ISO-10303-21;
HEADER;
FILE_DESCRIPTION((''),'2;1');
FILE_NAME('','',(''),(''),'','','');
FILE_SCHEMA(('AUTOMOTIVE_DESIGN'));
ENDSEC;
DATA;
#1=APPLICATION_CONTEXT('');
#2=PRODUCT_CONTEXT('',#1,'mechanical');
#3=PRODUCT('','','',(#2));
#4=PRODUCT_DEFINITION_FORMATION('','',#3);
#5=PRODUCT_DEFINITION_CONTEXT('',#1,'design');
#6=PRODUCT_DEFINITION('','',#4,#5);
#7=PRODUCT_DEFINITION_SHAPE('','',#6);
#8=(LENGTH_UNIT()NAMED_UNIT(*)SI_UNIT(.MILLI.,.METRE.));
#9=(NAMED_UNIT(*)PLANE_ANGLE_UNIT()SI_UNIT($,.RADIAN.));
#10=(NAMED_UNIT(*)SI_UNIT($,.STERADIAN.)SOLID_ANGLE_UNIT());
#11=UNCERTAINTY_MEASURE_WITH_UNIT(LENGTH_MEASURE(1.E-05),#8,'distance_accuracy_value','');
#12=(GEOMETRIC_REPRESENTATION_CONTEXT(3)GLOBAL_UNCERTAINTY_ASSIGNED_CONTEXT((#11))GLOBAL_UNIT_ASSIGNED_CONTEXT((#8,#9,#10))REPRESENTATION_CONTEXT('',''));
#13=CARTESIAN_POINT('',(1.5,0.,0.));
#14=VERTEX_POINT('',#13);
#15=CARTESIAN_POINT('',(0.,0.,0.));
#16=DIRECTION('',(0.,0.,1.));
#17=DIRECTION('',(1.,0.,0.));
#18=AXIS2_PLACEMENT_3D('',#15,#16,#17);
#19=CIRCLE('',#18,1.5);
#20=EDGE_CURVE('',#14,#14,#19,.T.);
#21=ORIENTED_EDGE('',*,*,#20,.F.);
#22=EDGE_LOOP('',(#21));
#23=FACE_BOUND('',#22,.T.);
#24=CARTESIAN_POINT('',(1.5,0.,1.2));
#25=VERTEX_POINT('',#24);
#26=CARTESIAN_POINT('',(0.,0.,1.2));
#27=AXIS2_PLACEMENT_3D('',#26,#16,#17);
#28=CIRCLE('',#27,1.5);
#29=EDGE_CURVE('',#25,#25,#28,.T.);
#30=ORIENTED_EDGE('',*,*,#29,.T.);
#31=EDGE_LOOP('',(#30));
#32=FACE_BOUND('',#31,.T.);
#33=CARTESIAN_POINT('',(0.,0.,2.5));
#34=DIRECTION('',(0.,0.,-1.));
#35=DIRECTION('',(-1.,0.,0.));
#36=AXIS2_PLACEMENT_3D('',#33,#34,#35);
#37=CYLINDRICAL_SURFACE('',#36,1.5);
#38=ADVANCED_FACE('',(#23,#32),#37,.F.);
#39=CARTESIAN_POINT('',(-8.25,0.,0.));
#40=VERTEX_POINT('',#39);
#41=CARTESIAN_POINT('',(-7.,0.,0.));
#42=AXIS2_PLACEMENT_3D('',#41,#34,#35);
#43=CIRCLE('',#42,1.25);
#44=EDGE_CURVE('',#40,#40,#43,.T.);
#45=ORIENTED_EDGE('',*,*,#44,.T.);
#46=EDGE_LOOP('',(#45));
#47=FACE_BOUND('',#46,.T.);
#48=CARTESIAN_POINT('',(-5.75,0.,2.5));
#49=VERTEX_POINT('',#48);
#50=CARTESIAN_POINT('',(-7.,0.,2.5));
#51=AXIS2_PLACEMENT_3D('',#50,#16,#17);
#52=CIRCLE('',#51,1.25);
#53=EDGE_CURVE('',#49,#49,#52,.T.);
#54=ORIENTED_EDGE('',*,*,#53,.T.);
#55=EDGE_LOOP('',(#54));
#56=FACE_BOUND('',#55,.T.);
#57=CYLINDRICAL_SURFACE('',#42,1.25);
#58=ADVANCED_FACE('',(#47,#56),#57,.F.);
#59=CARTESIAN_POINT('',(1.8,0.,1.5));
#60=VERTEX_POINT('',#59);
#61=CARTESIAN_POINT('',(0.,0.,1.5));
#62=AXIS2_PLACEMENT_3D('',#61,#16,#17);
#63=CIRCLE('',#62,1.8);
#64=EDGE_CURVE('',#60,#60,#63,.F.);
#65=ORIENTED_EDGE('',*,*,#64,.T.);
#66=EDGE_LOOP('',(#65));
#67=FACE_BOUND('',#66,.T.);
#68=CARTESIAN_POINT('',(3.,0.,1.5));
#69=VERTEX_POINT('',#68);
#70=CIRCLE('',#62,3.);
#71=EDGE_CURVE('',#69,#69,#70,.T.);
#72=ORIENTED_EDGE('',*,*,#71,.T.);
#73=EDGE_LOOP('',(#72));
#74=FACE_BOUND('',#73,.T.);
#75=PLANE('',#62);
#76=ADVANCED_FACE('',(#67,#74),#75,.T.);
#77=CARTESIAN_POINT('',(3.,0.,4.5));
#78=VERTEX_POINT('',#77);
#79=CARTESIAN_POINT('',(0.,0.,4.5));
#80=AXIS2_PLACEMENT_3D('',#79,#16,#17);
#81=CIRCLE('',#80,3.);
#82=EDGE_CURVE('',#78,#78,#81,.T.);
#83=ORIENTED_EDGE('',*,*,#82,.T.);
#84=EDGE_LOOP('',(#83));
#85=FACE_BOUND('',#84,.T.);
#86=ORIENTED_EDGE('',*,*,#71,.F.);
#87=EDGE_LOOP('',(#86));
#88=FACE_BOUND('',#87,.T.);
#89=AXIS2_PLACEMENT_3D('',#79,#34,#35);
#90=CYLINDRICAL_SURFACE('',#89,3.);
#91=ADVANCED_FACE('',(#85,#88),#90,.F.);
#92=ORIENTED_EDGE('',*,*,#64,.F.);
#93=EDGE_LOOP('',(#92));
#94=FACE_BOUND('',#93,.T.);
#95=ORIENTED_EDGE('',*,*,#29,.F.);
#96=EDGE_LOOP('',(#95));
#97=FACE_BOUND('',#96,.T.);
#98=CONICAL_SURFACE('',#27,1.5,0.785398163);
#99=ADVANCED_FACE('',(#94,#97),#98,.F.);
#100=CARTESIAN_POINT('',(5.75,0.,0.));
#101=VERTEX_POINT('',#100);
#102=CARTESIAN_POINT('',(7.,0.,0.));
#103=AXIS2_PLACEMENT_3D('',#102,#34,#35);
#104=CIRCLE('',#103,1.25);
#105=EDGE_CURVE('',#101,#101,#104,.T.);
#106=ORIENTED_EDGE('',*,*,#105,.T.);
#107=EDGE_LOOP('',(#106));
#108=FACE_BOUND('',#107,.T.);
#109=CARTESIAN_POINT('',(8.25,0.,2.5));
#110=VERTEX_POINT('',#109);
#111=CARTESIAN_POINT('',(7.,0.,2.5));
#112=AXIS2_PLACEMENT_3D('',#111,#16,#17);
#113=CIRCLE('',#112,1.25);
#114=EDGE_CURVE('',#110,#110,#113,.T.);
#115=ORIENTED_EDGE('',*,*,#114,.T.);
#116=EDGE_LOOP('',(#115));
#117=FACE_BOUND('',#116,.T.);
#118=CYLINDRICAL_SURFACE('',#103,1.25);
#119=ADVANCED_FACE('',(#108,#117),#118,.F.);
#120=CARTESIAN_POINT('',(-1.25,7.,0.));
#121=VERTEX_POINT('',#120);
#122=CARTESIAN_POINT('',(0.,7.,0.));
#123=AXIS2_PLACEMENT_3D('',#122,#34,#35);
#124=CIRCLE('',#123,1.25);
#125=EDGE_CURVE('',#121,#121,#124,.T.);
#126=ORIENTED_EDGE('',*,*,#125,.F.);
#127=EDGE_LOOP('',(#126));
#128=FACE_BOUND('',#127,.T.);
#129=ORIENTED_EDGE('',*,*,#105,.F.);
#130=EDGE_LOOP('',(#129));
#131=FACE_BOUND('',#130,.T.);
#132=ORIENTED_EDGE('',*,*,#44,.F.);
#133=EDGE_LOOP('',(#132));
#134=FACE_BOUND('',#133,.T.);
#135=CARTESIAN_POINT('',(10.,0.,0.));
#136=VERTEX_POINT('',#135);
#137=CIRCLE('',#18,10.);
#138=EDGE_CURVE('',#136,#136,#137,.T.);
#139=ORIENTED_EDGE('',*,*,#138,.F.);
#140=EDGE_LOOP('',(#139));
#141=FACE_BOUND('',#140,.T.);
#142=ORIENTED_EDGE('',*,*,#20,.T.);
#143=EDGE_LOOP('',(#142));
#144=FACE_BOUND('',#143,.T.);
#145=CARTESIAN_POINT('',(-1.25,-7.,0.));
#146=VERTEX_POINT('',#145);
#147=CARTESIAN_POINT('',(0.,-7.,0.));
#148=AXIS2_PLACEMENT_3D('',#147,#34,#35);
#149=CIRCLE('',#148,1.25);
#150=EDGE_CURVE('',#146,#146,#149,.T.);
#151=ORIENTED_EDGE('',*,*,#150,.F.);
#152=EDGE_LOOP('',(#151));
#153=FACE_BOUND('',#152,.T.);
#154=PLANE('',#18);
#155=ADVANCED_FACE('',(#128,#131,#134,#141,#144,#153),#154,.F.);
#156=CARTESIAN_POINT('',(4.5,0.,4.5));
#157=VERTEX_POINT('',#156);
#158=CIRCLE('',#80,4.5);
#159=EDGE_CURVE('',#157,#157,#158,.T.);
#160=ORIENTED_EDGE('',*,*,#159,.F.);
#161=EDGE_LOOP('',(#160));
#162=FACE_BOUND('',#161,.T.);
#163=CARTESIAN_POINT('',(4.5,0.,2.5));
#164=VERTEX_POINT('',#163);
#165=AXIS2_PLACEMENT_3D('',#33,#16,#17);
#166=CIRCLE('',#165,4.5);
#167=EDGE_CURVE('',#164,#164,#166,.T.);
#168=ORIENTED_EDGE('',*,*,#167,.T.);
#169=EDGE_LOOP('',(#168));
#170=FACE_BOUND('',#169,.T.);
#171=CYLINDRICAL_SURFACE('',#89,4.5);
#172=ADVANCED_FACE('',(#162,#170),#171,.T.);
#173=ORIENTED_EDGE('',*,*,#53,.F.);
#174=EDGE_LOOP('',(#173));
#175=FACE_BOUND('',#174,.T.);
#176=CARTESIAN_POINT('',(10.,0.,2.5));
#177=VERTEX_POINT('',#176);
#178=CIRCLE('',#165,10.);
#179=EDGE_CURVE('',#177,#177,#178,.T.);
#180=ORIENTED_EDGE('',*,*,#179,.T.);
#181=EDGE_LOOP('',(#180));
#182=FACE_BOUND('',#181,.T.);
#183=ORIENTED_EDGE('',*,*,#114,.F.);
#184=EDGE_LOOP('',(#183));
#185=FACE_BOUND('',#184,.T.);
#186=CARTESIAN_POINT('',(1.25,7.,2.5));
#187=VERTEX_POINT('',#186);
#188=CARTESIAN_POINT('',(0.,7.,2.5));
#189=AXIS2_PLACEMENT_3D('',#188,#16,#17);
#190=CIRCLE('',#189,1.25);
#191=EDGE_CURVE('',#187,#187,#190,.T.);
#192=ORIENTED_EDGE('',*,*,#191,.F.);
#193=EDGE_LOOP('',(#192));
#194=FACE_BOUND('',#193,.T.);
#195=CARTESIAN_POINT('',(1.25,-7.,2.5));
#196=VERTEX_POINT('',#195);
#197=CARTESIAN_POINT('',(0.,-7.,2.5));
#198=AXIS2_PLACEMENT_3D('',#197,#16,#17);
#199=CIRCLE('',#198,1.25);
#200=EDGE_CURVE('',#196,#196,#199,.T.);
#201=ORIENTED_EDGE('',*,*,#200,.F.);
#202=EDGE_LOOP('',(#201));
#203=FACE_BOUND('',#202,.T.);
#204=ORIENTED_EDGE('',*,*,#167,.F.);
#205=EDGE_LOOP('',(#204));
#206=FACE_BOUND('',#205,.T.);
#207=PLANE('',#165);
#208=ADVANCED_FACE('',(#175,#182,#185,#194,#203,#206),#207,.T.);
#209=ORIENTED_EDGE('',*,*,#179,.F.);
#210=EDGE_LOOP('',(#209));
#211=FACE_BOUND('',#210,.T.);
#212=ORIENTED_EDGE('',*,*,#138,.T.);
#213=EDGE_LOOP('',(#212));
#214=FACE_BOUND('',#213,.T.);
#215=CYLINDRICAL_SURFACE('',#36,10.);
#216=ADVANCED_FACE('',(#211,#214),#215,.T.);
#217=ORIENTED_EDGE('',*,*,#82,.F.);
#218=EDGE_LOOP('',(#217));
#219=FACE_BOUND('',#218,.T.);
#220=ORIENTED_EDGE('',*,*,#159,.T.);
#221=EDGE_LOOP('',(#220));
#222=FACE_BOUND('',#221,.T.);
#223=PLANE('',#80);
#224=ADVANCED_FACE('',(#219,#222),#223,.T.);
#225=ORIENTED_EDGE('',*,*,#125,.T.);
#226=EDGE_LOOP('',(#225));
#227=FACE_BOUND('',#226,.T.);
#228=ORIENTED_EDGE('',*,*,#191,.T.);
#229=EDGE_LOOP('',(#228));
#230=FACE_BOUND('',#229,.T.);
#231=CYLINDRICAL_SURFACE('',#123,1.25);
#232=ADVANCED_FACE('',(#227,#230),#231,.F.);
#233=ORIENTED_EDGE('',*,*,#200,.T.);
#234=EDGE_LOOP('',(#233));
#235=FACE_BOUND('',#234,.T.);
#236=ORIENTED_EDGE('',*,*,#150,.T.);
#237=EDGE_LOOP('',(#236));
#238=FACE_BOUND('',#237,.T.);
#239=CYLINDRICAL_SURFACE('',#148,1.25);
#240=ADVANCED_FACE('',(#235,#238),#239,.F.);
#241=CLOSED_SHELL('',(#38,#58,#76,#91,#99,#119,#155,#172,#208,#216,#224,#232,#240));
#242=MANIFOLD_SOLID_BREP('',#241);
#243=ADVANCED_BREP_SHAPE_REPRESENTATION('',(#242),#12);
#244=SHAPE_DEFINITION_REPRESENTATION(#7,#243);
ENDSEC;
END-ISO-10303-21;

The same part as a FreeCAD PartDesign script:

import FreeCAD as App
import Part
import Sketcher
Q = App.Units.Quantity


def edges_at(feature, points):
    """Names of the edges that pass closest to the given points."""
    edges = feature.Shape.Edges
    near = lambda p: min(range(len(edges)), key=lambda i: edges[i].distToShape(Part.Vertex(*p))[0])
    return sorted({f"Edge{near(p) + 1}" for p in points})

doc = App.newDocument("Part")
body = doc.addObject("PartDesign::Body", "Body")

sketch1 = body.newObject("Sketcher::SketchObject", "Sketch")
sketch1.AttachmentSupport = (doc.getObject("XY_Plane"), [""])
sketch1.MapMode = "FlatFace"
sketch1.addGeometry([
    Part.Circle(App.Vector(0, 0, 0), App.Vector(0, 0, 1), 10),
    Part.Circle(App.Vector(0, -7, 0), App.Vector(0, 0, 1), 0.5),
    Part.Circle(App.Vector(-7, 0, 0), App.Vector(0, 0, 1), 0.5),
    Part.Circle(App.Vector(0, 0, 0), App.Vector(0, 0, 1), 1.5),
    Part.Circle(App.Vector(7, 0, 0), App.Vector(0, 0, 1), 0.5),
    Part.Circle(App.Vector(0, 7, 0), App.Vector(0, 0, 1), 0.5),
], False)
sketch1.addConstraint([
    Sketcher.Constraint("Coincident", 0, 3, -1, 1),
    Sketcher.Constraint("Coincident", 3, 3, -1, 1),
    Sketcher.Constraint("Equal", 1, 2),
    Sketcher.Constraint("Equal", 2, 4),
    Sketcher.Constraint("Equal", 4, 5),
    Sketcher.Constraint("Symmetric", 2, 3, 4, 3, -1, 1),
    Sketcher.Constraint("Symmetric", 1, 3, 5, 3, -1, 1),
    Sketcher.Constraint("PointOnObject", 1, 3, -2),
    Sketcher.Constraint("PointOnObject", 2, 3, -1),
    Sketcher.Constraint("Diameter", 0, Q("20 mm")),
    Sketcher.Constraint("Diameter", 1, Q("1 mm")),
    Sketcher.Constraint("Diameter", 3, Q("3 mm")),
    Sketcher.Constraint("DistanceY", 1, 3, -1, 1, Q("7 mm")),
    Sketcher.Constraint("DistanceX", 2, 3, -1, 1, Q("7 mm")),
])
pad1 = body.newObject("PartDesign::Pad", "Pad")
pad1.Profile = sketch1
pad1.Length = 2.5

sketch2 = body.newObject("Sketcher::SketchObject", "Sketch001")
sketch2.AttachmentSupport = (doc.getObject("XY_Plane"), [""])
sketch2.MapMode = "FlatFace"
sketch2.AttachmentOffset = App.Placement(App.Vector(0, 0, 2.5), App.Rotation())
sketch2.addGeometry([
    Part.Circle(App.Vector(0, 0, 0), App.Vector(0, 0, 1), 4.5),
    Part.Circle(App.Vector(0, 0, 0), App.Vector(0, 0, 1), 3),
], False)
sketch2.addConstraint([
    Sketcher.Constraint("Coincident", 0, 3, -1, 1),
    Sketcher.Constraint("Coincident", 1, 3, -1, 1),
    Sketcher.Constraint("Diameter", 0, Q("9 mm")),
    Sketcher.Constraint("Diameter", 1, Q("6 mm")),
])
pad2 = body.newObject("PartDesign::Pad", "Pad001")
pad2.Profile = sketch2
pad2.Length = 2

sketch3 = body.newObject("Sketcher::SketchObject", "Sketch002")
sketch3.AttachmentSupport = (doc.getObject("XY_Plane"), [""])
sketch3.MapMode = "FlatFace"
sketch3.AttachmentOffset = App.Placement(App.Vector(0, 0, 1.5), App.Rotation())
sketch3.addGeometry(Part.Circle(App.Vector(0, 0, 0), App.Vector(0, 0, 1), 3), False)
sketch3.addConstraint([
    Sketcher.Constraint("Coincident", 0, 3, -1, 1),
    Sketcher.Constraint("Diameter", 0, Q("6 mm")),
])
pocket1 = body.newObject("PartDesign::Pocket", "Pocket")
pocket1.Profile = sketch3
pocket1.Length = 1
pocket1.Reversed = True
doc.recompute()

chamfer = body.newObject("PartDesign::Chamfer", "Chamfer")
chamfer.Base = (pocket1, edges_at(pocket1, [(-1.5, 0, 1.5)]))
chamfer.Size = 0.3

sketch4 = body.newObject("Sketcher::SketchObject", "Sketch003")
sketch4.AttachmentSupport = (doc.getObject("XY_Plane"), [""])
sketch4.MapMode = "FlatFace"
sketch4.addGeometry([
    Part.Circle(App.Vector(0, 7, 0), App.Vector(0, 0, 1), 1.2),
    Part.Circle(App.Vector(-7, 0, 0), App.Vector(0, 0, 1), 1.2),
    Part.Circle(App.Vector(0, -7, 0), App.Vector(0, 0, 1), 1.2),
    Part.Circle(App.Vector(7, 0, 0), App.Vector(0, 0, 1), 1.2),
], False)
sketch4.addConstraint([
    Sketcher.Constraint("Equal", 0, 1),
    Sketcher.Constraint("Equal", 1, 2),
    Sketcher.Constraint("Equal", 2, 3),
    Sketcher.Constraint("Symmetric", 0, 3, 2, 3, -1, 1),
    Sketcher.Constraint("Symmetric", 1, 3, 3, 3, -1, 1),
    Sketcher.Constraint("PointOnObject", 0, 3, -2),
    Sketcher.Constraint("PointOnObject", 1, 3, -1),
    Sketcher.Constraint("Diameter", 0, Q("2.5 mm")),
    Sketcher.Constraint("DistanceY", -1, 1, 0, 3, Q("7 mm")),
    Sketcher.Constraint("DistanceX", 1, 3, -1, 1, Q("7 mm")),
])
doc.recompute()
hole = body.newObject("PartDesign::Hole", "Hole")
hole.Profile = sketch4
hole.ThreadType = "None"
hole.Diameter = 2.5
hole.DepthType = "Dimension"
hole.Depth = 6.5
hole.DrillPoint = "Angled"
hole.DrillPointAngle = 118
hole.Reversed = True

doc.recompute()
